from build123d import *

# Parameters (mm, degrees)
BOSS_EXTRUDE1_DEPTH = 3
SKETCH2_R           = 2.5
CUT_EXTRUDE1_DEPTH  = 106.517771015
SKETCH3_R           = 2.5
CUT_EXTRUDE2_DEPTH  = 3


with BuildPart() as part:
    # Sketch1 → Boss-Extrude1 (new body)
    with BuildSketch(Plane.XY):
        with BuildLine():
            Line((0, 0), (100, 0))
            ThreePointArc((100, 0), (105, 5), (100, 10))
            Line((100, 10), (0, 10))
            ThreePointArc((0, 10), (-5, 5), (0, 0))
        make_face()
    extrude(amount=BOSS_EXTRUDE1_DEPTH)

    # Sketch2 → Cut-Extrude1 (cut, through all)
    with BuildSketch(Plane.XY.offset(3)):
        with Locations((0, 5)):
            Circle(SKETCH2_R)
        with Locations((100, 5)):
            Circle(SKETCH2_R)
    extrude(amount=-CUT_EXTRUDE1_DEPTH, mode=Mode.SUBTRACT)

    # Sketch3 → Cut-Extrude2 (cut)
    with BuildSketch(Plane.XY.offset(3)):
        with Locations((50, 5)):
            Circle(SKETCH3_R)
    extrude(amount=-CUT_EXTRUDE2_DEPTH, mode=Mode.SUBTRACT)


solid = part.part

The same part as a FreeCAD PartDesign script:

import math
import FreeCAD as App
import Part
import Sketcher
from FreeCAD import Vector
Q = App.Units.Quantity

doc = App.newDocument("Part")
body = doc.addObject("PartDesign::Body", "Body")

# Sketch on XY plane
sketch1 = body.newObject("Sketcher::SketchObject", "Sketch")
sketch1.AttachmentSupport = (doc.getObject("XY_Plane"), [""])
sketch1.MapMode = "FlatFace"
sketch1.addGeometry(Part.LineSegment(Vector(0, 0, 0), Vector(100, 0, 0)), False)
sketch1.addGeometry(Part.ArcOfCircle(Part.Circle(Vector(100, 5, 0), Vector(0, 0, 1), 5), math.radians(-90), math.radians(90)), False)
sketch1.addGeometry(Part.LineSegment(Vector(100, 10, 0), Vector(0, 10, 0)), False)
sketch1.addGeometry(Part.ArcOfCircle(Part.Circle(Vector(0, 5, 0), Vector(0, 0, 1), 5), math.radians(90), math.radians(270)), False)
sketch1.addConstraint(Sketcher.Constraint("Tangent", 0, 2, 1, 1))
sketch1.addConstraint(Sketcher.Constraint("Tangent", 1, 2, 2, 1))
sketch1.addConstraint(Sketcher.Constraint("Tangent", 2, 2, 3, 1))
sketch1.addConstraint(Sketcher.Constraint("Tangent", 3, 2, 0, 1))
sketch1.addConstraint(Sketcher.Constraint("Horizontal", 0))
sketch1.addConstraint(Sketcher.Constraint("Horizontal", 2))
sketch1.addConstraint(Sketcher.Constraint("Coincident", 3, 2, -1, 1))
sketch1.addConstraint(Sketcher.Constraint("Radius", 1, Q("5 mm")))
sketch1.addConstraint(Sketcher.Constraint("DistanceX", 0, 1, 0, 2, Q("100 mm")))
pad1 = body.newObject("PartDesign::Pad", "Pad")
pad1.Profile = sketch1
pad1.Length = 3

# Sketch on XY plane
sketch2 = body.newObject("Sketcher::SketchObject", "Sketch001")
sketch2.AttachmentSupport = (doc.getObject("XY_Plane"), [""])
sketch2.MapMode = "FlatFace"
sketch2.AttachmentOffset = App.Placement(Vector(0, 0, 3), App.Rotation())
sketch2.addGeometry(Part.Circle(Vector(0, 5, 0), Vector(0, 0, 1), 2.5), False)
sketch2.addGeometry(Part.Circle(Vector(100, 5, 0), Vector(0, 0, 1), 2.5), False)
sketch2.addConstraint(Sketcher.Constraint("Equal", 0, 1))
sketch2.addConstraint(Sketcher.Constraint("PointOnObject", 0, 3, -2))
sketch2.addConstraint(Sketcher.Constraint("Horizontal", 0, 3, 1, 3))
sketch2.addConstraint(Sketcher.Constraint("Diameter", 0, Q("5 mm")))
sketch2.addConstraint(Sketcher.Constraint("DistanceY", -1, 1, 0, 3, Q("5 mm")))
sketch2.addConstraint(Sketcher.Constraint("DistanceX", -1, 1, 1, 3, Q("100 mm")))
pocket1 = body.newObject("PartDesign::Pocket", "Pocket")
pocket1.Profile = sketch2
pocket1.Type = "ThroughAll"

# Sketch on XY plane
sketch3 = body.newObject("Sketcher::SketchObject", "Sketch002")
sketch3.AttachmentSupport = (doc.getObject("XY_Plane"), [""])
sketch3.MapMode = "FlatFace"
sketch3.AttachmentOffset = App.Placement(Vector(0, 0, 3), App.Rotation())
sketch3.addGeometry(Part.Circle(Vector(50, 5, 0), Vector(0, 0, 1), 2.5), False)
sketch3.addConstraint(Sketcher.Constraint("Diameter", 0, Q("5 mm")))
sketch3.addConstraint(Sketcher.Constraint("DistanceX", -1, 1, 0, 3, Q("50 mm")))
sketch3.addConstraint(Sketcher.Constraint("DistanceY", -1, 1, 0, 3, Q("5 mm")))
pocket2 = body.newObject("PartDesign::Pocket", "Pocket001")
pocket2.Profile = sketch3
pocket2.Length = 3

doc.recompute()
